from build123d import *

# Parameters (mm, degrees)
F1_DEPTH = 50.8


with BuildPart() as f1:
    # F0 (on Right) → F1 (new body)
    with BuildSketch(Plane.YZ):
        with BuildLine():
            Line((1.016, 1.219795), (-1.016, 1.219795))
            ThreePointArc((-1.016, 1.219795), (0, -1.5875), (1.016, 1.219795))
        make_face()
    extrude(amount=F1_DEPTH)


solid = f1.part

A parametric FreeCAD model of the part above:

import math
import FreeCAD as App
import Part
import Sketcher

V = App.Vector
Q = App.Units.Quantity

doc = App.newDocument("Part")
params = doc.addObject("Spreadsheet::Sheet", "Params")
for row, (alias, value) in enumerate([
    ("sketch1_radius", "0.0625 in"),
    ("sketch1_width", "0.08 in"),
    ("pad1_length", "2 in"),
], start=1):
    params.set(f"A{row}", alias)
    params.set(f"B{row}", "=" + value)
    params.setAlias(f"B{row}", alias)

body = doc.addObject("PartDesign::Body", "Body")

sketch1 = doc.addObject("Sketcher::SketchObject", "Sketch")
body.addObject(sketch1)
sketch1.AttachmentSupport = (doc.YZ_Plane, [""])
sketch1.MapMode = "FlatFace"
sketch1.addGeometry(Part.LineSegment(V(1.016, 1.219795, 0), V(-1.016, 1.219795, 0)), False)
sketch1.addGeometry(Part.ArcOfCircle(Part.Circle(V(0, 0, 0), V(0, 0, 1), 1.5875), math.radians(129.791822), math.radians(410.208178)), False)
sketch1.addConstraint(Sketcher.Constraint("Coincident", 0, 1, 1, 2))
sketch1.addConstraint(Sketcher.Constraint("Coincident", 1, 1, 0, 2))
sketch1.addConstraint(Sketcher.Constraint("Horizontal", 0))
sketch1.addConstraint(Sketcher.Constraint("Coincident", 1, 3, -1, 1))
sketch1.addConstraint(Sketcher.Constraint("Radius", 1, Q("0.0625 in")))
sketch1.addConstraint(Sketcher.Constraint("DistanceX", 0, 2, 0, 1, Q("0.08 in")))
sketch1.setExpression("Constraints[4]", "Params.sketch1_radius")
sketch1.setExpression("Constraints[5]", "Params.sketch1_width")
pad1 = doc.addObject("PartDesign::Pad", "Pad")
body.addObject(pad1)
pad1.Profile = sketch1
pad1.setExpression("Length", "Params.pad1_length")

doc.recompute()
